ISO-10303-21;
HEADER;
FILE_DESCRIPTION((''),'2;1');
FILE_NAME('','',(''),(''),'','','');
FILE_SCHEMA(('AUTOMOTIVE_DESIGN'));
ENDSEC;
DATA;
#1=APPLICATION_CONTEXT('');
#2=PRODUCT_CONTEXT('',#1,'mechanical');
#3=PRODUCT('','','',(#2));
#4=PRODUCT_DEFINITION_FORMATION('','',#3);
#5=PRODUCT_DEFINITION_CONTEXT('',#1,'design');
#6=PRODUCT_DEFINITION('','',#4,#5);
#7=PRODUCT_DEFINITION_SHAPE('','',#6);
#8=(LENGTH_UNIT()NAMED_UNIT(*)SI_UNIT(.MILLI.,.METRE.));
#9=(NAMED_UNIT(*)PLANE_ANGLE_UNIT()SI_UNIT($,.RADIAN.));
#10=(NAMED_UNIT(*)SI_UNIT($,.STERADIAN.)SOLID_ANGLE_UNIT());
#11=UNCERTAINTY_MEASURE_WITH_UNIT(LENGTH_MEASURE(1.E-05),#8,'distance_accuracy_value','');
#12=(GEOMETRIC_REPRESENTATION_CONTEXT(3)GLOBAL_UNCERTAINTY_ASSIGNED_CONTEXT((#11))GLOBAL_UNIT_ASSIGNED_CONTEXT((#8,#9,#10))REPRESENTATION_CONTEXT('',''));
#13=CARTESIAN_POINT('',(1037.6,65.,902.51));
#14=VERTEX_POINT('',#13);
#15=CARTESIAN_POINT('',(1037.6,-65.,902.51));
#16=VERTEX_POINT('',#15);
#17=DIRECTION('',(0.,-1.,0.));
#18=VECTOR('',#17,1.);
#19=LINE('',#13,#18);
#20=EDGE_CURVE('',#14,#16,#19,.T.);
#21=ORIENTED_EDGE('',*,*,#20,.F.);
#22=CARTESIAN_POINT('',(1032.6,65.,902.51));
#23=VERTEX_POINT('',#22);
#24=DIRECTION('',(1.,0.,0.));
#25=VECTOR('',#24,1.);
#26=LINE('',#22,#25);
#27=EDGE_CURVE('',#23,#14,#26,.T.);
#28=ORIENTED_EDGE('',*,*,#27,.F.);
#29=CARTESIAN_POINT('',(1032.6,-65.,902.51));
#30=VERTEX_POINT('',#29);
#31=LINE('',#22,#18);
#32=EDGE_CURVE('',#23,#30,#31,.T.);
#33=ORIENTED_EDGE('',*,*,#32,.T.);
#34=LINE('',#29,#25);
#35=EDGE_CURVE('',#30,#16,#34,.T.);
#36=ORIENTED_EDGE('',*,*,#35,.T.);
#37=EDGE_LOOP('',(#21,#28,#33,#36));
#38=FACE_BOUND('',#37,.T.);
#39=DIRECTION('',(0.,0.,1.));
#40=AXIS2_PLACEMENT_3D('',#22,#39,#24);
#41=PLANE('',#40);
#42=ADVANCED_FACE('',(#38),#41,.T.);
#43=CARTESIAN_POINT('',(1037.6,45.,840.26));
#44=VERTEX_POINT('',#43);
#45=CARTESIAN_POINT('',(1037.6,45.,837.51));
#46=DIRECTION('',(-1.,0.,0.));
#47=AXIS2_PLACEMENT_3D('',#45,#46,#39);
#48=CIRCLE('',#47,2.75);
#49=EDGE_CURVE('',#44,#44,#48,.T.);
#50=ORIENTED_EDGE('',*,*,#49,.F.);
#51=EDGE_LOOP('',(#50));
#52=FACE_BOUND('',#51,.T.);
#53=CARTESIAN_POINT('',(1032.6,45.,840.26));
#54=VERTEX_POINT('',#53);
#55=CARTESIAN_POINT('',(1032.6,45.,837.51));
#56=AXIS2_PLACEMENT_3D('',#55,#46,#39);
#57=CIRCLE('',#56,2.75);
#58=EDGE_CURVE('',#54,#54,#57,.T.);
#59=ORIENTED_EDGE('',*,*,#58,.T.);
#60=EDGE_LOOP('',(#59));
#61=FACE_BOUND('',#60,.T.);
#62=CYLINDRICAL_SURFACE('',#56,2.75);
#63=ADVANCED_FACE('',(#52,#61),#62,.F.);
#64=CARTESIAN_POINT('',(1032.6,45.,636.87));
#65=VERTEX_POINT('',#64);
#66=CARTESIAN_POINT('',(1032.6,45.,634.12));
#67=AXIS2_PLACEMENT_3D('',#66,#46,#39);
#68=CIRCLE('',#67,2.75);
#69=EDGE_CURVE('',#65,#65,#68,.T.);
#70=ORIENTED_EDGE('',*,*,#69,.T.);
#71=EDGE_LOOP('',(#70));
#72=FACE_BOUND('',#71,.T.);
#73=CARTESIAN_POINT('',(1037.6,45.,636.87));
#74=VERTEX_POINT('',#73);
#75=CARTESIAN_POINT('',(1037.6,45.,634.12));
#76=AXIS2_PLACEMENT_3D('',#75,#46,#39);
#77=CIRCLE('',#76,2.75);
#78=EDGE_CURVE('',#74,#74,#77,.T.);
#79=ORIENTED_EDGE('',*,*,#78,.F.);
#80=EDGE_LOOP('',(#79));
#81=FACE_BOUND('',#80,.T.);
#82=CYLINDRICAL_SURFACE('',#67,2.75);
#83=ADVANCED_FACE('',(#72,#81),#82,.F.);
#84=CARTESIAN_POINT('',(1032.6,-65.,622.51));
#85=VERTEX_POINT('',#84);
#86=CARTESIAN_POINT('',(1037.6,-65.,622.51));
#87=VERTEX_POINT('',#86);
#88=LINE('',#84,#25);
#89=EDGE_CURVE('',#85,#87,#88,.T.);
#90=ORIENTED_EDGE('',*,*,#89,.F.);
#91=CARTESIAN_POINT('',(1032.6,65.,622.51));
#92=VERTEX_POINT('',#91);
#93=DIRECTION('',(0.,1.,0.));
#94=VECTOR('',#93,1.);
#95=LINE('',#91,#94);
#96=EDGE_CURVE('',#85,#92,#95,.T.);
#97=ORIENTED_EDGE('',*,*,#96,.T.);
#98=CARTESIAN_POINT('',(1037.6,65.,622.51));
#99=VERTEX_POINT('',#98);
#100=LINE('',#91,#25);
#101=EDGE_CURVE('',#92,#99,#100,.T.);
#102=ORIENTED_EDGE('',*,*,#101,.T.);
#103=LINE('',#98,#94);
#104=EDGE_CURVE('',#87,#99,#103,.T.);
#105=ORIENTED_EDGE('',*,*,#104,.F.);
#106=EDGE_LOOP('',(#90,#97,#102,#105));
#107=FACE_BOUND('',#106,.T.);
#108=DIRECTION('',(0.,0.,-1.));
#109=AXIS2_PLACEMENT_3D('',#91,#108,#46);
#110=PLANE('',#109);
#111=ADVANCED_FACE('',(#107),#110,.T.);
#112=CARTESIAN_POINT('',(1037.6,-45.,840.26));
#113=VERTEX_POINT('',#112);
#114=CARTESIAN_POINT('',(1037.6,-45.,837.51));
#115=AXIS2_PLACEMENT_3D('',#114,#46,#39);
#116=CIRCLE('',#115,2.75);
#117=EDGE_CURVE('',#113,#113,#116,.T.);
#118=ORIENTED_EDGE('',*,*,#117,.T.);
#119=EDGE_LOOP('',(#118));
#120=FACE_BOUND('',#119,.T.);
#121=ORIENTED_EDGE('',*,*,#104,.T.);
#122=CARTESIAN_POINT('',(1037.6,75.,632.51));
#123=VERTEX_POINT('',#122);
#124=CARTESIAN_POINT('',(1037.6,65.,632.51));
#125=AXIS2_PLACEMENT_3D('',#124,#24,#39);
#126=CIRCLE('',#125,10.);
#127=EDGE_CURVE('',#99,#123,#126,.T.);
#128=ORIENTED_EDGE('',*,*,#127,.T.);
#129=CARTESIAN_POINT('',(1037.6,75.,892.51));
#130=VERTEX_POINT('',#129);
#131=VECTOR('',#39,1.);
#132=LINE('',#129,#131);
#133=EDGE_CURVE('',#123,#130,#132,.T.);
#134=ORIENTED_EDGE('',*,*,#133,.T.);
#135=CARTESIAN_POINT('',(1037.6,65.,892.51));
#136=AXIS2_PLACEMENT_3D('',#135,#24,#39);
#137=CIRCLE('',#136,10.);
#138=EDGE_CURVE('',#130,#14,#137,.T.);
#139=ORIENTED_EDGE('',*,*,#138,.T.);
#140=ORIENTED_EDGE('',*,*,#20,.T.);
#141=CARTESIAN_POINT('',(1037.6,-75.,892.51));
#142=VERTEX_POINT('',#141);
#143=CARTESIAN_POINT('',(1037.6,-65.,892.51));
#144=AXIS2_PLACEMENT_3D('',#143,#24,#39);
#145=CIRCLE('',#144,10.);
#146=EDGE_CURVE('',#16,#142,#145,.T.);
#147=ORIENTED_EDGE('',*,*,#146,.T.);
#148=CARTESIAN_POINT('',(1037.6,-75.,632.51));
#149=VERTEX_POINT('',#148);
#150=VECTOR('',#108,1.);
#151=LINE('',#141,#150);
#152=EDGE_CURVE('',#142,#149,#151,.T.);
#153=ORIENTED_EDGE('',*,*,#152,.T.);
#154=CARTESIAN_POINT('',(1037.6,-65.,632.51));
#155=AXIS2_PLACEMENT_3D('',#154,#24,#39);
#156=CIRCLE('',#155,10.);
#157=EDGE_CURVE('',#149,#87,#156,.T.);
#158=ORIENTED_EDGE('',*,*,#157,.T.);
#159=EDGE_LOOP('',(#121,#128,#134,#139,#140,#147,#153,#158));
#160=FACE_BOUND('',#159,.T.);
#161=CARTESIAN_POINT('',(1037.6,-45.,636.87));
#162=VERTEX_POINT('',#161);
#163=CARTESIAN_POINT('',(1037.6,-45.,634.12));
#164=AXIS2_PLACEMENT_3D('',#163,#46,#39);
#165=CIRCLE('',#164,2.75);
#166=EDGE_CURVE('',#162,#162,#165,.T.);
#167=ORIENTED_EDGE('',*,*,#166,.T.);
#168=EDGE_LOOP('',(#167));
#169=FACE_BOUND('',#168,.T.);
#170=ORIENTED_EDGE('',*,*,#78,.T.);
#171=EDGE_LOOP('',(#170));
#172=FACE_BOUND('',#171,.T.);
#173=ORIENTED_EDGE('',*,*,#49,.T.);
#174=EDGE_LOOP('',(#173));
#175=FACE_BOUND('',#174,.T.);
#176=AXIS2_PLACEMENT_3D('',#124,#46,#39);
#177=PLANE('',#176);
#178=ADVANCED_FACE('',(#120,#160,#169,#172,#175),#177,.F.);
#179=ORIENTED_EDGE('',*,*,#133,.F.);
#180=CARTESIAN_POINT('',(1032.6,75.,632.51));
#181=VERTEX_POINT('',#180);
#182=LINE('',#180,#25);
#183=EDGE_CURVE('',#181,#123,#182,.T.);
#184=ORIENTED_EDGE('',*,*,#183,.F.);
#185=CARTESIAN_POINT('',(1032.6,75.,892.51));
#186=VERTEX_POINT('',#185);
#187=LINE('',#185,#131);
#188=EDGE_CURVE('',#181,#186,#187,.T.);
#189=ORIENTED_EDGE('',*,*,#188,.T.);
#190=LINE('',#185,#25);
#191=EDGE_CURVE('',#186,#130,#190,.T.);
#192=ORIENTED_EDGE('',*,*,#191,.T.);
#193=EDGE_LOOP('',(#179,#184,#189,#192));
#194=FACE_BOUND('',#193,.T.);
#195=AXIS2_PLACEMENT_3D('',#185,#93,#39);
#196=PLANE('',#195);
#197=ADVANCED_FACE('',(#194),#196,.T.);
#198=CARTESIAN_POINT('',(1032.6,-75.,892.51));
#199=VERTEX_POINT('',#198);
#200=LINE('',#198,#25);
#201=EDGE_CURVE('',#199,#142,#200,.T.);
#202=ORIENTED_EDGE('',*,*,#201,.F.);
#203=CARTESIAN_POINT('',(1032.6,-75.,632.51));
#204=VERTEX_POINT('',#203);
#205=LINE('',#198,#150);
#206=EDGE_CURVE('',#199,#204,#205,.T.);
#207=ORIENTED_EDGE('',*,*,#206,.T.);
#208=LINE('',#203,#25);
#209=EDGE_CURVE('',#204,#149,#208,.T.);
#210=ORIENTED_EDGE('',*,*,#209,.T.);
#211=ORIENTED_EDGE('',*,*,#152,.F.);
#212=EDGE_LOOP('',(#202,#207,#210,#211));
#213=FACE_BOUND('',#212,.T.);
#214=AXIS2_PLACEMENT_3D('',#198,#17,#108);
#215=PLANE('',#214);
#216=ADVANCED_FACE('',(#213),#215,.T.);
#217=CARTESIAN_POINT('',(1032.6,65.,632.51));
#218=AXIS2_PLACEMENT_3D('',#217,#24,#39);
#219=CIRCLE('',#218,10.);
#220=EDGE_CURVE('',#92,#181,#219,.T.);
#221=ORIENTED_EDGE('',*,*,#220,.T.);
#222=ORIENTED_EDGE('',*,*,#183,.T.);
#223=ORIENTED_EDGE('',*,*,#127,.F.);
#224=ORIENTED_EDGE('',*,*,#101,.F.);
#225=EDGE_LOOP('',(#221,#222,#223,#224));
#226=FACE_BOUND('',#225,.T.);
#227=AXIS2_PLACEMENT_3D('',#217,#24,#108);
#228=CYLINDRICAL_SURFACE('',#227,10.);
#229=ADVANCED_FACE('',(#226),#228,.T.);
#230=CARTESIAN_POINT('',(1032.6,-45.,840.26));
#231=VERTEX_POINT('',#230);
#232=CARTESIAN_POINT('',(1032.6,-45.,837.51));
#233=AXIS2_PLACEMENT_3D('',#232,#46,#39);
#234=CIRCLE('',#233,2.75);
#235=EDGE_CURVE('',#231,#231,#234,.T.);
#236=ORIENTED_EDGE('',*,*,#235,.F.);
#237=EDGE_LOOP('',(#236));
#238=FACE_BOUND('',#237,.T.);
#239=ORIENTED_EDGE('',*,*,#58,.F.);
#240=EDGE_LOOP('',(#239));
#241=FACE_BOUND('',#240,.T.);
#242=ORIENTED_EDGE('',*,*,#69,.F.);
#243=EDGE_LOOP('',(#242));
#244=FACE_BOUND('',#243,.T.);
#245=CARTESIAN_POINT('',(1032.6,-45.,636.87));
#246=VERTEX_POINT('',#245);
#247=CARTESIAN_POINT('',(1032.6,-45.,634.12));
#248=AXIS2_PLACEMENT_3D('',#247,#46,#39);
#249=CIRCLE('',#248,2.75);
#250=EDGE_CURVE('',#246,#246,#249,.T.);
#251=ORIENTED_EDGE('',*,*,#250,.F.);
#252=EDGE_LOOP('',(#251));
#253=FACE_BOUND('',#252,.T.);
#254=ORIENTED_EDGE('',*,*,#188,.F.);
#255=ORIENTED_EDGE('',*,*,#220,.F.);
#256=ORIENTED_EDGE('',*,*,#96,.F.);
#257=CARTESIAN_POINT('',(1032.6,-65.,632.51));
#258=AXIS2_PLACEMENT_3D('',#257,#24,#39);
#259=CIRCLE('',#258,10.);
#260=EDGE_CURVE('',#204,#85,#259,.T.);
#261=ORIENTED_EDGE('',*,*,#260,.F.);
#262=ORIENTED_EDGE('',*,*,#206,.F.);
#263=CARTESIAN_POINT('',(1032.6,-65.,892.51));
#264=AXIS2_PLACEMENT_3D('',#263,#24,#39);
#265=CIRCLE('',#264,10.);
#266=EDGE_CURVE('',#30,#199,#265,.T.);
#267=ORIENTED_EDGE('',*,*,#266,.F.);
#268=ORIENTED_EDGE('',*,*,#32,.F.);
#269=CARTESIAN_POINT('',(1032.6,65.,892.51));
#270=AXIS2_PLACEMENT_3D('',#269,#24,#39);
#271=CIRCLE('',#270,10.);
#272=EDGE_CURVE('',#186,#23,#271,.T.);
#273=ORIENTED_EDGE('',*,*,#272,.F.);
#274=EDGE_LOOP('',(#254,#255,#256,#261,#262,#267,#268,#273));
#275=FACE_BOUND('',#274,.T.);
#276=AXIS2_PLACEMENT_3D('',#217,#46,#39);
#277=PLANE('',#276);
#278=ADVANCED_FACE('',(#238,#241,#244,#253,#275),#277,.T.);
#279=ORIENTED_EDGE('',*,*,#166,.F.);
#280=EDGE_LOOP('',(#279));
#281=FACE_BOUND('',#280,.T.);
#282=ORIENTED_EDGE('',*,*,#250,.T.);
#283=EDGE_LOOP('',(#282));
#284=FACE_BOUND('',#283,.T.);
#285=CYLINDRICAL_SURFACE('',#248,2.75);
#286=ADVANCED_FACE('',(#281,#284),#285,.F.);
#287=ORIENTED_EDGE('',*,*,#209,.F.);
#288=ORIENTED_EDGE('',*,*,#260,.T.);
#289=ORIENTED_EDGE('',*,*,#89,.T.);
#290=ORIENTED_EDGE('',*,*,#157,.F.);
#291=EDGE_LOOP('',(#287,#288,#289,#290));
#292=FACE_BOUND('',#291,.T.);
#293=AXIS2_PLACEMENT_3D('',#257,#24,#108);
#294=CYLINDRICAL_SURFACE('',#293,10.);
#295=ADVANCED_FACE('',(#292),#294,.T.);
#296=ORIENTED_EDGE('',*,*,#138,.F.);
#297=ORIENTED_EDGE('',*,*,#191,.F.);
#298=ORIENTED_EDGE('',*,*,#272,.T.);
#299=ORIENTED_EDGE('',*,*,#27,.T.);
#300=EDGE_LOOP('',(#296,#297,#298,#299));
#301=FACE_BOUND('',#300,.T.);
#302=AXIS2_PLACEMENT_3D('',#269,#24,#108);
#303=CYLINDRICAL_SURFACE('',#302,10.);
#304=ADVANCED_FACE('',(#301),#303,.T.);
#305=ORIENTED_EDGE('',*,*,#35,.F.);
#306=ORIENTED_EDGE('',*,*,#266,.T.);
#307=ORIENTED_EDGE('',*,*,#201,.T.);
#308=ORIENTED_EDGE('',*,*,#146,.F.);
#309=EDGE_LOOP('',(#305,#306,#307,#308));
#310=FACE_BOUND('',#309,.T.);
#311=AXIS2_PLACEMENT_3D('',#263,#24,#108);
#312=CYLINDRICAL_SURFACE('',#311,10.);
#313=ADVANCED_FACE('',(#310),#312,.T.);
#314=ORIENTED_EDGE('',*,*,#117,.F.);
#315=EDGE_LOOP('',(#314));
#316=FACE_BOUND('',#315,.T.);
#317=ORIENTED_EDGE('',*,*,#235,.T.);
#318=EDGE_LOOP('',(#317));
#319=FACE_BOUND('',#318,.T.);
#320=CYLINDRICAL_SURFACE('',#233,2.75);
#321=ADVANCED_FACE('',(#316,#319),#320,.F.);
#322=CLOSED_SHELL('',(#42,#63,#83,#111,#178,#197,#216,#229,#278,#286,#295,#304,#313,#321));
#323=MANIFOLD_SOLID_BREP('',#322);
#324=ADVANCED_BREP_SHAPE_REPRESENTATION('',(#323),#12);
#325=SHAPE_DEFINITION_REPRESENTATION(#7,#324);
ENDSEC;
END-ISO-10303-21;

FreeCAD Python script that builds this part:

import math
import FreeCAD as App
import Part
import Sketcher
from FreeCAD import Vector
Q = App.Units.Quantity

doc = App.newDocument("Part")
body = doc.addObject("PartDesign::Body", "Body")

# Sketch on YZ plane
sketch1 = body.newObject("Sketcher::SketchObject", "Sketch")
sketch1.AttachmentSupport = (doc.getObject("YZ_Plane"), [""])
sketch1.MapMode = "FlatFace"
sketch1.AttachmentOffset = App.Placement(Vector(0, 0, 1037.6), App.Rotation())
sketch1.addGeometry([
    Part.LineSegment(Vector(75, 633, 0), Vector(75, 893, 0)),  # 0
    Part.ArcOfCircle(Part.Circle(Vector(65, 893, 0), Vector(0, 0, 1), 10), math.radians(0), math.radians(90)),  # 1
    Part.LineSegment(Vector(65, 903, 0), Vector(-65, 903, 0)),  # 2
    Part.ArcOfCircle(Part.Circle(Vector(-65, 893, 0), Vector(0, 0, 1), 10), math.radians(90), math.radians(180)),  # 3
    Part.LineSegment(Vector(-75, 893, 0), Vector(-75, 633, 0)),  # 4
    Part.ArcOfCircle(Part.Circle(Vector(-65, 633, 0), Vector(0, 0, 1), 10), math.radians(180), math.radians(270)),  # 5
    Part.LineSegment(Vector(-65, 623, 0), Vector(65, 623, 0)),  # 6
    Part.ArcOfCircle(Part.Circle(Vector(65, 633, 0), Vector(0, 0, 1), 10), math.radians(-90), math.radians(0)),  # 7
], False)
sketch1.addConstraint([
    Sketcher.Constraint("Tangent", 0, 2, 1, 1),
    Sketcher.Constraint("Tangent", 1, 2, 2, 1),
    Sketcher.Constraint("Tangent", 2, 2, 3, 1),
    Sketcher.Constraint("Tangent", 3, 2, 4, 1),
    Sketcher.Constraint("Tangent", 4, 2, 5, 1),
    Sketcher.Constraint("Tangent", 5, 2, 6, 1),
    Sketcher.Constraint("Tangent", 6, 2, 7, 1),
    Sketcher.Constraint("Tangent", 7, 2, 0, 1),
    Sketcher.Constraint("Vertical", 0),
    Sketcher.Constraint("Horizontal", 2),
    Sketcher.Constraint("Vertical", 4),
    Sketcher.Constraint("Horizontal", 6),
    Sketcher.Constraint("Equal", 1, 3),
    Sketcher.Constraint("Equal", 3, 5),
    Sketcher.Constraint("Equal", 5, 7),
    Sketcher.Constraint("Radius", 1, Q("10 mm")),
    Sketcher.Constraint("DistanceX", 2, 2, 2, 1, Q("130 mm")),
    Sketcher.Constraint("DistanceY", 0, 1, 0, 2, Q("260 mm")),
    Sketcher.Constraint("DistanceX", -1, 1, 1, 3, Q("65 mm")),
    Sketcher.Constraint("DistanceY", -1, 1, 1, 3, Q("892.51 mm")),
])
pad1 = body.newObject("PartDesign::Pad", "Pad")
pad1.Profile = sketch1
pad1.Length = 5
pad1.Reversed = True

# Sketch on YZ plane
sketch2 = body.newObject("Sketcher::SketchObject", "Sketch001")
sketch2.AttachmentSupport = (doc.getObject("YZ_Plane"), [""])
sketch2.MapMode = "FlatFace"
sketch2.AttachmentOffset = App.Placement(Vector(0, 0, 1032.6), App.Rotation())
sketch2.addGeometry([
    Part.Circle(Vector(45, 634.1, 0), Vector(0, 0, 1), 2.8),
    Part.Circle(Vector(-45, 634.1, 0), Vector(0, 0, 1), 2.8),
], False)
sketch2.addConstraint([
    Sketcher.Constraint("Equal", 0, 1),
    Sketcher.Constraint("Symmetric", 0, 3, 1, 3, -2),
    Sketcher.Constraint("Diameter", 0, Q("5.5 mm")),
    Sketcher.Constraint("DistanceX", -1, 1, 0, 3, Q("45 mm")),
    Sketcher.Constraint("DistanceY", -1, 1, 0, 3, Q("634.12 mm")),
])
doc.recompute()
hole = body.newObject("PartDesign::Hole", "Hole")
hole.Profile = sketch2
hole.ThreadType = "None"
hole.Diameter = 5.5
hole.DepthType = "Dimension"
hole.Depth = 14
hole.DrillPoint = "Angled"
hole.DrillPointAngle = 118
hole.Reversed = True

# Sketch on YZ plane
sketch3 = body.newObject("Sketcher::SketchObject", "Sketch002")
sketch3.AttachmentSupport = (doc.getObject("YZ_Plane"), [""])
sketch3.MapMode = "FlatFace"
sketch3.AttachmentOffset = App.Placement(Vector(0, 0, 1032.6), App.Rotation())
sketch3.addGeometry([
    Part.Circle(Vector(45, 837.5, 0), Vector(0, 0, 1), 2.8),
    Part.Circle(Vector(-45, 837.5, 0), Vector(0, 0, 1), 2.8),
], False)
sketch3.addConstraint([
    Sketcher.Constraint("Equal", 0, 1),
    Sketcher.Constraint("Symmetric", 0, 3, 1, 3, -2),
    Sketcher.Constraint("Diameter", 0, Q("5.5 mm")),
    Sketcher.Constraint("DistanceX", -1, 1, 0, 3, Q("45 mm")),
    Sketcher.Constraint("DistanceY", -1, 1, 0, 3, Q("837.51 mm")),
])
doc.recompute()
hole2 = body.newObject("PartDesign::Hole", "Hole001")
hole2.Profile = sketch3
hole2.ThreadType = "None"
hole2.Diameter = 5.5
hole2.DepthType = "Dimension"
hole2.Depth = 14
hole2.DrillPoint = "Angled"
hole2.DrillPointAngle = 118
hole2.Reversed = True

doc.recompute()
